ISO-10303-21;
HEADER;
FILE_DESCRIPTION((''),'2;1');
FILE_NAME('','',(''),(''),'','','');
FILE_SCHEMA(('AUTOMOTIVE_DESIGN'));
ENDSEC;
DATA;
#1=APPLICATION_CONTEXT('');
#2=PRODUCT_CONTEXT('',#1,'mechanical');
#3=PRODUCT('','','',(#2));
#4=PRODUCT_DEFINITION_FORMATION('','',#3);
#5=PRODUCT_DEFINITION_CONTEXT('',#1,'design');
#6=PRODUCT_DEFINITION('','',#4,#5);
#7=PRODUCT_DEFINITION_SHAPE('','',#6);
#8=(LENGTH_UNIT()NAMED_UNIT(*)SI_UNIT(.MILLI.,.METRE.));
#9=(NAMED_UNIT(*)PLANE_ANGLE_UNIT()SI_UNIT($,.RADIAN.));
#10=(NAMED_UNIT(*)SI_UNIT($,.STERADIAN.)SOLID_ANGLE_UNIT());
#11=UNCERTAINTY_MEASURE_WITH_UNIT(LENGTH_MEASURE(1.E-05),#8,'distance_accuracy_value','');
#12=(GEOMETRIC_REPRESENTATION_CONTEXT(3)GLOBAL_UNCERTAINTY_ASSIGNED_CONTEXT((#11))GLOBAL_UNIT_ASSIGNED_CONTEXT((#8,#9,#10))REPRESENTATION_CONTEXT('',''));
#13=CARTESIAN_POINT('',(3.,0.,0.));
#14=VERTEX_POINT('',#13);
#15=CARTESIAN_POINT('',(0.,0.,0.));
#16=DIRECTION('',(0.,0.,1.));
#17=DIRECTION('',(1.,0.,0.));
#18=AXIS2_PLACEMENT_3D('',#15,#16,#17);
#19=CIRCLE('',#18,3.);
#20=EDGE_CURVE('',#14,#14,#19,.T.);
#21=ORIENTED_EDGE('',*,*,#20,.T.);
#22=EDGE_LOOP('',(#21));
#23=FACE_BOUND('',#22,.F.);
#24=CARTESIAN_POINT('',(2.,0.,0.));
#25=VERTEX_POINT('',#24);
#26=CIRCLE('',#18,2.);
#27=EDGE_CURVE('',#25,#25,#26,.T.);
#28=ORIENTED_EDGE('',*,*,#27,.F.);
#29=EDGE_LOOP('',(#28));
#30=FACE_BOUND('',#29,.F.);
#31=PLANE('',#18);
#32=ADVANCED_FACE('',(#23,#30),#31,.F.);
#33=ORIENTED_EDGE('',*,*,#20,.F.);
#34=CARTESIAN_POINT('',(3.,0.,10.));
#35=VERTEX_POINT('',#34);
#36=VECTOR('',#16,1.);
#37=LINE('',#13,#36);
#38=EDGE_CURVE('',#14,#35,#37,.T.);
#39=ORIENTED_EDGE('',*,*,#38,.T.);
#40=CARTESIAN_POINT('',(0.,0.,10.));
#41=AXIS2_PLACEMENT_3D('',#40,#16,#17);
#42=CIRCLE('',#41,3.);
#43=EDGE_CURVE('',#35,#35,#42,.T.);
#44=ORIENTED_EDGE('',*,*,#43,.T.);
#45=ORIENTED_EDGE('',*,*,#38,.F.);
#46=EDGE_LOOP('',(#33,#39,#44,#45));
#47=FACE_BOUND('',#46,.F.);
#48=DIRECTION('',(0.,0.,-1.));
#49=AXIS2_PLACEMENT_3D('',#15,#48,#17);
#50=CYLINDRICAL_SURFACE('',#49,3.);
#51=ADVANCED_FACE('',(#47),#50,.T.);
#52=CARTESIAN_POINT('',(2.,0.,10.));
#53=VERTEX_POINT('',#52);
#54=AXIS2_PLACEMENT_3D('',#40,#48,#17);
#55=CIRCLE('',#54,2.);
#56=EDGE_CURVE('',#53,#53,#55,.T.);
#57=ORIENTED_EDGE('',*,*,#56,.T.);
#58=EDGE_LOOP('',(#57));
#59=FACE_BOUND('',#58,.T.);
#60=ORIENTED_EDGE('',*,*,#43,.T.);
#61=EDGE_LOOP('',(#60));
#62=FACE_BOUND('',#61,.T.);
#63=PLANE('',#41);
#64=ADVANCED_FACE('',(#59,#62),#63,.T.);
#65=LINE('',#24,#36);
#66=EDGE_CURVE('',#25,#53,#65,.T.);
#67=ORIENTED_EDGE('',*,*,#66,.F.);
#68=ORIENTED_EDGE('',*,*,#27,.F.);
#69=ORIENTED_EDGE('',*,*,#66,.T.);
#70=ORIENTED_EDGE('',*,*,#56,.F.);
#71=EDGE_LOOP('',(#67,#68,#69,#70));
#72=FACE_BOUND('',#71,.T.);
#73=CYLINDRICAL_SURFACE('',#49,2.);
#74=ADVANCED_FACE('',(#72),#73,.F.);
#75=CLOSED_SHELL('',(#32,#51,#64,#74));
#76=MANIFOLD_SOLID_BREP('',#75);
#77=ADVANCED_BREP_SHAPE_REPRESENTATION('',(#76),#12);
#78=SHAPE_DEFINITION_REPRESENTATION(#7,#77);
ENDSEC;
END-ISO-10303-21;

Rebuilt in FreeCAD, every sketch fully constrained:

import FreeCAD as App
import Part
import Sketcher

V = App.Vector

doc = App.newDocument("Part")
params = doc.addObject("Spreadsheet::Sheet", "Params")
for row, (alias, value) in enumerate([
    ("sketch1_diameter", "6 mm"),
    ("pad1_length", "10 mm"),
    ("sketch2_diameter", "4 mm"),
    ("pocket1_length", "100 mm"),
], start=1):
    params.set(f"A{row}", alias)
    params.set(f"B{row}", "=" + value)
    params.setAlias(f"B{row}", alias)

body = doc.addObject("PartDesign::Body", "Body")

# Sketch on XY plane
sketch1 = doc.addObject("Sketcher::SketchObject", "Sketch")
body.addObject(sketch1)
sketch1.AttachmentSupport = (doc.XY_Plane, [""])
sketch1.MapMode = "FlatFace"
sketch1.addGeometry(Part.Circle(V(0, 0, 0), V(0, 0, 1), 3), False)
sketch1.addConstraint([
    Sketcher.Constraint("Coincident", 0, 3, -1, 1),
    Sketcher.Constraint("Diameter", 0, 6.0),
])
sketch1.setExpression("Constraints[1]", "Params.sketch1_diameter")
pad1 = doc.addObject("PartDesign::Pad", "Pad")
body.addObject(pad1)
pad1.Profile = sketch1
pad1.setExpression("Length", "Params.pad1_length")

# Sketch on XY plane
sketch2 = doc.addObject("Sketcher::SketchObject", "Sketch001")
body.addObject(sketch2)
sketch2.AttachmentSupport = (doc.XY_Plane, [""])
sketch2.MapMode = "FlatFace"
sketch2.addGeometry(Part.Circle(V(0, 0, 0), V(0, 0, 1), 2), False)
sketch2.addConstraint([
    Sketcher.Constraint("Coincident", 0, 3, -1, 1),
    Sketcher.Constraint("Diameter", 0, 4.0),
])
sketch2.setExpression("Constraints[1]", "Params.sketch2_diameter")
pocket1 = doc.addObject("PartDesign::Pocket", "Pocket")
body.addObject(pocket1)
pocket1.Profile = sketch2
pocket1.setExpression("Length", "Params.pocket1_length")
pocket1.Reversed = True

doc.recompute()
